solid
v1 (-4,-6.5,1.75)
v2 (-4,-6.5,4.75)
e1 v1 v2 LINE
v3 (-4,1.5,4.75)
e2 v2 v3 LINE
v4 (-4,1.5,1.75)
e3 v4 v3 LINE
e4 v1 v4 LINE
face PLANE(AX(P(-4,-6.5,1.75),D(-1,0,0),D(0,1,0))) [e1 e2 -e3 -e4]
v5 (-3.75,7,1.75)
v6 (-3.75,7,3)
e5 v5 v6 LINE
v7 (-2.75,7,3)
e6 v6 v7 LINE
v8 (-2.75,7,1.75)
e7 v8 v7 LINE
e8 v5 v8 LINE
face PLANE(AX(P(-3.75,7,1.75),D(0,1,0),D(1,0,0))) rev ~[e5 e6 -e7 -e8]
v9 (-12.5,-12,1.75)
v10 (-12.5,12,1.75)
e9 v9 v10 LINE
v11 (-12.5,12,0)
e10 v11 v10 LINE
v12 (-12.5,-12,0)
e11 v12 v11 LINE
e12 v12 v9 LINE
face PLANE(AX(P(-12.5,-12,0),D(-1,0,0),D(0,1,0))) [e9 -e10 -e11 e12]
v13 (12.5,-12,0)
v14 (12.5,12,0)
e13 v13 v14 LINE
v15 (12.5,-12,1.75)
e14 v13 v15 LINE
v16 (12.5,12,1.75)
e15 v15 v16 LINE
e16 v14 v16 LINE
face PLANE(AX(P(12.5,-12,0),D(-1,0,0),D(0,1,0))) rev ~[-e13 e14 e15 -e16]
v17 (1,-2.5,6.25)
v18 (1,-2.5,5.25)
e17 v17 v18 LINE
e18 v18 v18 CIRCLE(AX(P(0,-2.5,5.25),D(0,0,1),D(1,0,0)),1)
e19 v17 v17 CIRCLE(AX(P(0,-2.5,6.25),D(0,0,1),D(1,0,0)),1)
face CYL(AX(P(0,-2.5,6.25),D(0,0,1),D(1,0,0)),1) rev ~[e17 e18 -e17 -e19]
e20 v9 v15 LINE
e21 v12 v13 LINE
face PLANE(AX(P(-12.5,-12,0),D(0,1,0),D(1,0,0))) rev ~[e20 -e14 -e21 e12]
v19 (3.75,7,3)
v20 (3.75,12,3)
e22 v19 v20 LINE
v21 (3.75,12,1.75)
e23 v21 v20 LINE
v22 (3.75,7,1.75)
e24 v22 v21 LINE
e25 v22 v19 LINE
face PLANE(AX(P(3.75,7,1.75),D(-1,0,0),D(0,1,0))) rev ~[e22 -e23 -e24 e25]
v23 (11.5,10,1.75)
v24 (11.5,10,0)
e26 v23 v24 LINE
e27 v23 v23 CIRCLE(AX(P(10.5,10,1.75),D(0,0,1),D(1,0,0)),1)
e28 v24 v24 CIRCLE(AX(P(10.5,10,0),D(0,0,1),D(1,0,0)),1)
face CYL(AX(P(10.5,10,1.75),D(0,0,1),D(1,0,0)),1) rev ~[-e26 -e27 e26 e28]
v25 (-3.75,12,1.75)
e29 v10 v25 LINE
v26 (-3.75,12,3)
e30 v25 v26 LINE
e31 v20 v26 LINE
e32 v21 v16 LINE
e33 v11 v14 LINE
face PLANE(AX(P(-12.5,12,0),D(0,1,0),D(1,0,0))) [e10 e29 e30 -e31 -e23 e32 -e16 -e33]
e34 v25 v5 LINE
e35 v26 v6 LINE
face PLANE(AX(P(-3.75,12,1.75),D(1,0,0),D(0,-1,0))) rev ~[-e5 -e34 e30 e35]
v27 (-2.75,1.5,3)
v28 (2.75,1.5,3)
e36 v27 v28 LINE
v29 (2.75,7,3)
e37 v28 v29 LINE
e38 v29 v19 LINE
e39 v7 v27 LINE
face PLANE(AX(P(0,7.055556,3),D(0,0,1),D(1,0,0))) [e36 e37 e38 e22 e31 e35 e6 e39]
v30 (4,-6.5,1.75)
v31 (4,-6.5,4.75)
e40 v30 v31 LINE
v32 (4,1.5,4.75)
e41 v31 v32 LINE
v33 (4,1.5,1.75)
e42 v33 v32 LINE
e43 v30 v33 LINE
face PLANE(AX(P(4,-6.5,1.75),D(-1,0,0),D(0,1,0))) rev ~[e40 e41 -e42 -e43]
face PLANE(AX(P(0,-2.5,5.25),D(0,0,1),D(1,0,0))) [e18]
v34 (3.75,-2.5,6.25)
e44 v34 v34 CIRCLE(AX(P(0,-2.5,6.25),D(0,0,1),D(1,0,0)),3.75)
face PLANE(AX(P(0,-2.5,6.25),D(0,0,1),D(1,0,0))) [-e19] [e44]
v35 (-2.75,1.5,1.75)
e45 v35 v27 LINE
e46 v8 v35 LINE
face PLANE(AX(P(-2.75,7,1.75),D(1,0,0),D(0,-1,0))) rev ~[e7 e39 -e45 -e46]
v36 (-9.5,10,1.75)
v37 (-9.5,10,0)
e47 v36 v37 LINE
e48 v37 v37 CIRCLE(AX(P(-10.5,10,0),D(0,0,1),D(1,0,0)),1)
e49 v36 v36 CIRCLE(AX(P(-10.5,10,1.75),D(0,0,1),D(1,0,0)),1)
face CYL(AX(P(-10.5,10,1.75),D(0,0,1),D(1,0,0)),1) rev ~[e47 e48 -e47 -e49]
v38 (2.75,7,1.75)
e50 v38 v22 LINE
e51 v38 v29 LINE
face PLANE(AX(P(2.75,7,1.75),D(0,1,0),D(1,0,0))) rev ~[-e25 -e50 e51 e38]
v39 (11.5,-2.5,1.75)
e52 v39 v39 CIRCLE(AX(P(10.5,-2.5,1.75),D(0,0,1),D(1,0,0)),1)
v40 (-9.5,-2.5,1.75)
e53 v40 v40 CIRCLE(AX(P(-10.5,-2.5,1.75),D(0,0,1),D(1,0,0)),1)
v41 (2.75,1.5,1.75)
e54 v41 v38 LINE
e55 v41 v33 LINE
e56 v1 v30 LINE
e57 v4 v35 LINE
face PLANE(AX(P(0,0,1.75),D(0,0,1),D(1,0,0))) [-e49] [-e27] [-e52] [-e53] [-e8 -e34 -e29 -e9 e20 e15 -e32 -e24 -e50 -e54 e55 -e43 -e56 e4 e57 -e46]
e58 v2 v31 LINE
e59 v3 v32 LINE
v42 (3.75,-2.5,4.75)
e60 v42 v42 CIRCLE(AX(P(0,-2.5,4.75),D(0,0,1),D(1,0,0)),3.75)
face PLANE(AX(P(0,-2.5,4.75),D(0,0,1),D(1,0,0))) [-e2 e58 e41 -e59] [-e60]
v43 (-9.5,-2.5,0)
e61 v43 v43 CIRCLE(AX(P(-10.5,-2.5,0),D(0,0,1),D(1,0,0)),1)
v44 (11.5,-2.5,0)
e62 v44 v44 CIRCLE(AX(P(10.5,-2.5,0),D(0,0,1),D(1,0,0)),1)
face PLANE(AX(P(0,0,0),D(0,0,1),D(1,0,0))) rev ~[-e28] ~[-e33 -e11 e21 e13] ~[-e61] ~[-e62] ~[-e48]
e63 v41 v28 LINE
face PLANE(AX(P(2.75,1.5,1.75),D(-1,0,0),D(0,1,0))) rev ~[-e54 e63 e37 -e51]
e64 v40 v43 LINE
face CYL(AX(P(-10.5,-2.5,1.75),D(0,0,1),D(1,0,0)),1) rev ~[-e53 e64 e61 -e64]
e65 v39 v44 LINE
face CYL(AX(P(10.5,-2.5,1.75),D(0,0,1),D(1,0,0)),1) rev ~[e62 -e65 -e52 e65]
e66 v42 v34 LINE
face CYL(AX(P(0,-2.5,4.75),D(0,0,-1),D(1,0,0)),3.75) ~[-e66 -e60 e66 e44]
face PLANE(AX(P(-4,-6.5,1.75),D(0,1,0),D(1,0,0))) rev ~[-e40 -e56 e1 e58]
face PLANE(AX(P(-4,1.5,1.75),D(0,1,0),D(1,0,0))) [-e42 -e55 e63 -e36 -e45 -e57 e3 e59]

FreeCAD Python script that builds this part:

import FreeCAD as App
import Part
import Sketcher

V = App.Vector
Q = App.Units.Quantity

doc = App.newDocument("Part")
params = doc.addObject("Spreadsheet::Sheet", "Params")
for row, (alias, value) in enumerate([
    ("sketch1_width", "25 mm"),
    ("sketch1_height", "24 mm"),
    ("pad1_length", "1.75 mm"),
    ("sketch2_diameter", "2 mm"),
    ("pocket1_length", "1.75 mm"),
    ("sketch3_width", "8 mm"),
    ("pad2_length", "3 mm"),
    ("sketch4_diameter", "7.5 mm"),
    ("pad3_length", "1.5 mm"),
    ("sketch5_diameter", "2 mm"),
    ("pocket2_length", "1 mm"),
    ("sketch6_width", "1 mm"),
    ("sketch6_height", "5 mm"),
    ("sketch6_width2", "5.5 mm"),
    ("pad4_length", "1.25 mm"),
], start=1):
    params.set(f"A{row}", alias)
    params.set(f"B{row}", "=" + value)
    params.setAlias(f"B{row}", alias)

body = doc.addObject("PartDesign::Body", "Body")

# Sketch on XY plane
sketch1 = body.newObject("Sketcher::SketchObject", "Sketch")
sketch1.AttachmentSupport = (doc.getObject("XY_Plane"), [""])
sketch1.MapMode = "FlatFace"
sketch1.addGeometry([
    Part.LineSegment(V(-12, 12, 0), V(-12, -12, 0)),
    Part.LineSegment(V(-12, -12, 0), V(12, -12, 0)),
    Part.LineSegment(V(12, -12, 0), V(12, 12, 0)),
    Part.LineSegment(V(12, 12, 0), V(-12, 12, 0)),
], False)
sketch1.addConstraint([
    Sketcher.Constraint("Coincident", 0, 2, 1, 1),
    Sketcher.Constraint("Coincident", 1, 2, 2, 1),
    Sketcher.Constraint("Coincident", 2, 2, 3, 1),
    Sketcher.Constraint("Coincident", 3, 2, 0, 1),
    Sketcher.Constraint("Vertical", 0),
    Sketcher.Constraint("Horizontal", 1),
    Sketcher.Constraint("Vertical", 2),
    Sketcher.Constraint("Horizontal", 3),
    Sketcher.Constraint("Symmetric", 0, 2, 2, 2, -1, 1),
    Sketcher.Constraint("DistanceX", 1, 1, 1, 2, Q("25 mm")),
    Sketcher.Constraint("DistanceY", 0, 2, 0, 1, Q("24 mm")),
])
sketch1.setExpression("Constraints[9]", "Params.sketch1_width")
sketch1.setExpression("Constraints[10]", "Params.sketch1_height")
pad1 = body.newObject("PartDesign::Pad", "Pad")
pad1.Profile = sketch1
pad1.setExpression("Length", "Params.pad1_length")

# Sketch on XY plane
sketch2 = body.newObject("Sketcher::SketchObject", "Sketch001")
sketch2.AttachmentSupport = (doc.getObject("XY_Plane"), [""])
sketch2.MapMode = "FlatFace"
sketch2.AttachmentOffset = App.Placement(V(0, 0, 1.75), App.Rotation())
sketch2.addGeometry([
    Part.Circle(V(-10.5, 10, 0), V(0, 0, 1), 1),
    Part.Circle(V(10.5, 10, 0), V(0, 0, 1), 1),
    Part.Circle(V(-10.5, -2.5, 0), V(0, 0, 1), 1),
    Part.Circle(V(10.5, -2.5, 0), V(0, 0, 1), 1),
], False)
sketch2.addConstraint([
    Sketcher.Constraint("Equal", 0, 1),
    Sketcher.Constraint("Equal", 1, 2),
    Sketcher.Constraint("Equal", 2, 3),
    Sketcher.Constraint("Symmetric", 0, 3, 1, 3, -2),
    Sketcher.Constraint("Symmetric", 2, 3, 3, 3, -2),
    Sketcher.Constraint("Vertical", 0, 3, 2, 3),
    Sketcher.Constraint("Diameter", 0, Q("2 mm")),
    Sketcher.Constraint("DistanceY", -1, 1, 0, 3, Q("10 mm")),
    Sketcher.Constraint("DistanceX", 0, 3, 1, 3, Q("21 mm")),
    Sketcher.Constraint("DistanceY", 2, 3, -1, 1, Q("2.5 mm")),
])
sketch2.setExpression("Constraints[6]", "Params.sketch2_diameter")
pocket1 = body.newObject("PartDesign::Pocket", "Pocket")
pocket1.Profile = sketch2
pocket1.setExpression("Length", "Params.pocket1_length")

# Sketch on XY plane
sketch3 = body.newObject("Sketcher::SketchObject", "Sketch002")
sketch3.AttachmentSupport = (doc.getObject("XY_Plane"), [""])
sketch3.MapMode = "FlatFace"
sketch3.AttachmentOffset = App.Placement(V(0, 0, 1.75), App.Rotation())
sketch3.addGeometry([
    Part.LineSegment(V(-4, 2, 0), V(-4, -6, 0)),
    Part.LineSegment(V(-4, -6, 0), V(4, -6, 0)),
    Part.LineSegment(V(4, -6, 0), V(4, 2, 0)),
    Part.LineSegment(V(4, 2, 0), V(-4, 2, 0)),
], False)
sketch3.addConstraint([
    Sketcher.Constraint("Coincident", 0, 2, 1, 1),
    Sketcher.Constraint("Coincident", 1, 2, 2, 1),
    Sketcher.Constraint("Coincident", 2, 2, 3, 1),
    Sketcher.Constraint("Coincident", 3, 2, 0, 1),
    Sketcher.Constraint("Vertical", 0),
    Sketcher.Constraint("Horizontal", 1),
    Sketcher.Constraint("Vertical", 2),
    Sketcher.Constraint("Horizontal", 3),
    Sketcher.Constraint("Equal", 3, 0),
    Sketcher.Constraint("DistanceX", 1, 1, 1, 2, Q("8 mm")),
    Sketcher.Constraint("DistanceX", 0, 2, -1, 1, Q("4 mm")),
    Sketcher.Constraint("DistanceY", 0, 2, -1, 1, Q("6.5 mm")),
])
sketch3.setExpression("Constraints[9]", "Params.sketch3_width")
pad2 = body.newObject("PartDesign::Pad", "Pad001")
pad2.Profile = sketch3
pad2.setExpression("Length", "Params.pad2_length")

# Sketch on XY plane
sketch4 = body.newObject("Sketcher::SketchObject", "Sketch003")
sketch4.AttachmentSupport = (doc.getObject("XY_Plane"), [""])
sketch4.MapMode = "FlatFace"
sketch4.AttachmentOffset = App.Placement(V(0, 0, 4.75), App.Rotation())
sketch4.addGeometry(Part.Circle(V(0, -2.5, 0), V(0, 0, 1), 3.8), False)
sketch4.addConstraint([
    Sketcher.Constraint("PointOnObject", 0, 3, -2),
    Sketcher.Constraint("Diameter", 0, Q("7.5 mm")),
    Sketcher.Constraint("DistanceY", 0, 3, -1, 1, Q("2.5 mm")),
])
sketch4.setExpression("Constraints[1]", "Params.sketch4_diameter")
pad3 = body.newObject("PartDesign::Pad", "Pad002")
pad3.Profile = sketch4
pad3.setExpression("Length", "Params.pad3_length")

# Sketch on XY plane
sketch5 = body.newObject("Sketcher::SketchObject", "Sketch004")
sketch5.AttachmentSupport = (doc.getObject("XY_Plane"), [""])
sketch5.MapMode = "FlatFace"
sketch5.AttachmentOffset = App.Placement(V(0, 0, 6.25), App.Rotation())
sketch5.addGeometry(Part.Circle(V(0, -2.5, 0), V(0, 0, 1), 1), False)
sketch5.addConstraint([
    Sketcher.Constraint("PointOnObject", 0, 3, -2),
    Sketcher.Constraint("Diameter", 0, Q("2 mm")),
    Sketcher.Constraint("DistanceY", 0, 3, -1, 1, Q("2.5 mm")),
])
sketch5.setExpression("Constraints[1]", "Params.sketch5_diameter")
pocket2 = body.newObject("PartDesign::Pocket", "Pocket001")
pocket2.Profile = sketch5
pocket2.setExpression("Length", "Params.pocket2_length")

# Sketch on XY plane
sketch6 = body.newObject("Sketcher::SketchObject", "Sketch005")
sketch6.AttachmentSupport = (doc.getObject("XY_Plane"), [""])
sketch6.MapMode = "FlatFace"
sketch6.AttachmentOffset = App.Placement(V(0, 0, 1.75), App.Rotation())
sketch6.addGeometry([
    Part.LineSegment(V(-3.8, 12, 0), V(-3.8, 7, 0)),  # 0
    Part.LineSegment(V(-3.8, 7, 0), V(-2.8, 7, 0)),  # 1
    Part.LineSegment(V(-2.8, 7, 0), V(-2.8, 1.5, 0)),  # 2
    Part.LineSegment(V(-2.8, 1.5, 0), V(2.8, 1.5, 0)),  # 3
    Part.LineSegment(V(2.8, 1.5, 0), V(2.8, 7, 0)),  # 4
    Part.LineSegment(V(2.8, 7, 0), V(3.8, 7, 0)),  # 5
    Part.LineSegment(V(3.8, 7, 0), V(3.8, 12, 0)),  # 6
    Part.LineSegment(V(3.8, 12, 0), V(-3.8, 12, 0)),  # 7
], False)
sketch6.addConstraint([
    Sketcher.Constraint("Coincident", 0, 2, 1, 1),
    Sketcher.Constraint("Coincident", 1, 2, 2, 1),
    Sketcher.Constraint("Coincident", 2, 2, 3, 1),
    Sketcher.Constraint("Coincident", 3, 2, 4, 1),
    Sketcher.Constraint("Coincident", 4, 2, 5, 1),
    Sketcher.Constraint("Coincident", 5, 2, 6, 1),
    Sketcher.Constraint("Coincident", 6, 2, 7, 1),
    Sketcher.Constraint("Coincident", 7, 2, 0, 1),
    Sketcher.Constraint("Vertical", 0),
    Sketcher.Constraint("Horizontal", 1),
    Sketcher.Constraint("Vertical", 2),
    Sketcher.Constraint("Horizontal", 3),
    Sketcher.Constraint("Vertical", 4),
    Sketcher.Constraint("Horizontal", 5),
    Sketcher.Constraint("Vertical", 6),
    Sketcher.Constraint("Horizontal", 7),
    Sketcher.Constraint("Symmetric", 1, 2, 4, 2, -2),
    Sketcher.Constraint("Equal", 1, 5),
    Sketcher.Constraint("Equal", 3, 2),
    Sketcher.Constraint("DistanceX", 1, 1, 1, 2, Q("1 mm")),
    Sketcher.Constraint("DistanceY", 0, 2, 0, 1, Q("5 mm")),
    Sketcher.Constraint("DistanceX", 3, 1, 3, 2, Q("5.5 mm")),
    Sketcher.Constraint("DistanceY", -1, 1, 0, 2, Q("7 mm")),
])
sketch6.setExpression("Constraints[19]", "Params.sketch6_width")
sketch6.setExpression("Constraints[20]", "Params.sketch6_height")
sketch6.setExpression("Constraints[21]", "Params.sketch6_width2")
pad4 = body.newObject("PartDesign::Pad", "Pad003")
pad4.Profile = sketch6
pad4.setExpression("Length", "Params.pad4_length")

doc.recompute()
